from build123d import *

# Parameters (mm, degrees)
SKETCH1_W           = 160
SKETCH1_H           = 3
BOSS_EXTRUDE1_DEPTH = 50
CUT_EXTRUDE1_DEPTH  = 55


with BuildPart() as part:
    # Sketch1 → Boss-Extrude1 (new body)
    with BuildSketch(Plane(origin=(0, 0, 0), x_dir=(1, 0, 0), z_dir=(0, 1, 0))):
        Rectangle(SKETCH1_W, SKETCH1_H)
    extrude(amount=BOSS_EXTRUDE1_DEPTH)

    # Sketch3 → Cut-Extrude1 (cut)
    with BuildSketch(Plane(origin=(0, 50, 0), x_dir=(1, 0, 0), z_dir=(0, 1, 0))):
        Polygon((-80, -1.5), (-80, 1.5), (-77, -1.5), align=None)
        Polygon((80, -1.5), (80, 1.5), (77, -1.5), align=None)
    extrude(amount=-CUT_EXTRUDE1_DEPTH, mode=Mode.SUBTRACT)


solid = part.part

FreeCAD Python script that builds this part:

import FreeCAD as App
import Part
import Sketcher
Q = App.Units.Quantity

doc = App.newDocument("Part")
body = doc.addObject("PartDesign::Body", "Body")

# Sketch on XZ plane
sketch1 = body.newObject("Sketcher::SketchObject", "Sketch")
sketch1.AttachmentSupport = (doc.getObject("XZ_Plane"), [""])
sketch1.MapMode = "FlatFace"
sketch1.addGeometry(Part.LineSegment(App.Vector(-80, -1.5, 0), App.Vector(-80, 1.5, 0)), False)
sketch1.addGeometry(Part.LineSegment(App.Vector(-80, 1.5, 0), App.Vector(80, 1.5, 0)), False)
sketch1.addGeometry(Part.LineSegment(App.Vector(80, 1.5, 0), App.Vector(80, -1.5, 0)), False)
sketch1.addGeometry(Part.LineSegment(App.Vector(80, -1.5, 0), App.Vector(-80, -1.5, 0)), False)
sketch1.addConstraint(Sketcher.Constraint("Coincident", 0, 2, 1, 1))
sketch1.addConstraint(Sketcher.Constraint("Coincident", 1, 2, 2, 1))
sketch1.addConstraint(Sketcher.Constraint("Coincident", 2, 2, 3, 1))
sketch1.addConstraint(Sketcher.Constraint("Coincident", 3, 2, 0, 1))
sketch1.addConstraint(Sketcher.Constraint("Vertical", 0))
sketch1.addConstraint(Sketcher.Constraint("Horizontal", 1))
sketch1.addConstraint(Sketcher.Constraint("Vertical", 2))
sketch1.addConstraint(Sketcher.Constraint("Horizontal", 3))
sketch1.addConstraint(Sketcher.Constraint("Symmetric", 0, 2, 2, 2, -1, 1))
sketch1.addConstraint(Sketcher.Constraint("DistanceX", 1, 1, 1, 2, Q("160 mm")))
sketch1.addConstraint(Sketcher.Constraint("DistanceY", 0, 1, 0, 2, Q("3 mm")))
pad1 = body.newObject("PartDesign::Pad", "Pad")
pad1.Profile = sketch1
pad1.Length = 50
pad1.Reversed = True

# Sketch on XZ plane
sketch2 = body.newObject("Sketcher::SketchObject", "Sketch001")
sketch2.AttachmentSupport = (doc.getObject("XZ_Plane"), [""])
sketch2.MapMode = "FlatFace"
sketch2.AttachmentOffset = App.Placement(App.Vector(0, 0, -50), App.Rotation())
sketch2.addGeometry(Part.LineSegment(App.Vector(-80, -1.5, 0), App.Vector(-80, 1.5, 0)), False)
sketch2.addGeometry(Part.LineSegment(App.Vector(-80, 1.5, 0), App.Vector(-77, 1.5, 0)), False)
sketch2.addGeometry(Part.LineSegment(App.Vector(-77, 1.5, 0), App.Vector(-80, -1.5, 0)), False)
sketch2.addGeometry(Part.LineSegment(App.Vector(80, 1.5, 0), App.Vector(80, -1.5, 0)), False)
sketch2.addGeometry(Part.LineSegment(App.Vector(80, -1.5, 0), App.Vector(77, 1.5, 0)), False)
sketch2.addGeometry(Part.LineSegment(App.Vector(77, 1.5, 0), App.Vector(80, 1.5, 0)), False)
sketch2.addConstraint(Sketcher.Constraint("Coincident", 0, 2, 1, 1))
sketch2.addConstraint(Sketcher.Constraint("Coincident", 1, 2, 2, 1))
sketch2.addConstraint(Sketcher.Constraint("Coincident", 2, 2, 0, 1))
sketch2.addConstraint(Sketcher.Constraint("Coincident", 3, 2, 4, 1))
sketch2.addConstraint(Sketcher.Constraint("Coincident", 4, 2, 5, 1))
sketch2.addConstraint(Sketcher.Constraint("Coincident", 5, 2, 3, 1))
sketch2.addConstraint(Sketcher.Constraint("Vertical", 0))
sketch2.addConstraint(Sketcher.Constraint("Horizontal", 1))
sketch2.addConstraint(Sketcher.Constraint("Vertical", 3))
sketch2.addConstraint(Sketcher.Constraint("Horizontal", 5))
sketch2.addConstraint(Sketcher.Constraint("Symmetric", 0, 2, 3, 2, -1, 1))
sketch2.addConstraint(Sketcher.Constraint("Symmetric", 1, 2, 4, 2, -2))
sketch2.addConstraint(Sketcher.Constraint("Perpendicular", 2, 4))
sketch2.addConstraint(Sketcher.Constraint("Horizontal", 2, 2, 3, 2))
sketch2.addConstraint(Sketcher.Constraint("DistanceX", 1, 1, 1, 2, Q("3 mm")))
sketch2.addConstraint(Sketcher.Constraint("DistanceX", 0, 2, -1, 1, Q("80 mm")))
pocket1 = body.newObject("PartDesign::Pocket", "Pocket")
pocket1.Profile = sketch2
pocket1.Length = 55
pocket1.Reversed = True

doc.recompute()
